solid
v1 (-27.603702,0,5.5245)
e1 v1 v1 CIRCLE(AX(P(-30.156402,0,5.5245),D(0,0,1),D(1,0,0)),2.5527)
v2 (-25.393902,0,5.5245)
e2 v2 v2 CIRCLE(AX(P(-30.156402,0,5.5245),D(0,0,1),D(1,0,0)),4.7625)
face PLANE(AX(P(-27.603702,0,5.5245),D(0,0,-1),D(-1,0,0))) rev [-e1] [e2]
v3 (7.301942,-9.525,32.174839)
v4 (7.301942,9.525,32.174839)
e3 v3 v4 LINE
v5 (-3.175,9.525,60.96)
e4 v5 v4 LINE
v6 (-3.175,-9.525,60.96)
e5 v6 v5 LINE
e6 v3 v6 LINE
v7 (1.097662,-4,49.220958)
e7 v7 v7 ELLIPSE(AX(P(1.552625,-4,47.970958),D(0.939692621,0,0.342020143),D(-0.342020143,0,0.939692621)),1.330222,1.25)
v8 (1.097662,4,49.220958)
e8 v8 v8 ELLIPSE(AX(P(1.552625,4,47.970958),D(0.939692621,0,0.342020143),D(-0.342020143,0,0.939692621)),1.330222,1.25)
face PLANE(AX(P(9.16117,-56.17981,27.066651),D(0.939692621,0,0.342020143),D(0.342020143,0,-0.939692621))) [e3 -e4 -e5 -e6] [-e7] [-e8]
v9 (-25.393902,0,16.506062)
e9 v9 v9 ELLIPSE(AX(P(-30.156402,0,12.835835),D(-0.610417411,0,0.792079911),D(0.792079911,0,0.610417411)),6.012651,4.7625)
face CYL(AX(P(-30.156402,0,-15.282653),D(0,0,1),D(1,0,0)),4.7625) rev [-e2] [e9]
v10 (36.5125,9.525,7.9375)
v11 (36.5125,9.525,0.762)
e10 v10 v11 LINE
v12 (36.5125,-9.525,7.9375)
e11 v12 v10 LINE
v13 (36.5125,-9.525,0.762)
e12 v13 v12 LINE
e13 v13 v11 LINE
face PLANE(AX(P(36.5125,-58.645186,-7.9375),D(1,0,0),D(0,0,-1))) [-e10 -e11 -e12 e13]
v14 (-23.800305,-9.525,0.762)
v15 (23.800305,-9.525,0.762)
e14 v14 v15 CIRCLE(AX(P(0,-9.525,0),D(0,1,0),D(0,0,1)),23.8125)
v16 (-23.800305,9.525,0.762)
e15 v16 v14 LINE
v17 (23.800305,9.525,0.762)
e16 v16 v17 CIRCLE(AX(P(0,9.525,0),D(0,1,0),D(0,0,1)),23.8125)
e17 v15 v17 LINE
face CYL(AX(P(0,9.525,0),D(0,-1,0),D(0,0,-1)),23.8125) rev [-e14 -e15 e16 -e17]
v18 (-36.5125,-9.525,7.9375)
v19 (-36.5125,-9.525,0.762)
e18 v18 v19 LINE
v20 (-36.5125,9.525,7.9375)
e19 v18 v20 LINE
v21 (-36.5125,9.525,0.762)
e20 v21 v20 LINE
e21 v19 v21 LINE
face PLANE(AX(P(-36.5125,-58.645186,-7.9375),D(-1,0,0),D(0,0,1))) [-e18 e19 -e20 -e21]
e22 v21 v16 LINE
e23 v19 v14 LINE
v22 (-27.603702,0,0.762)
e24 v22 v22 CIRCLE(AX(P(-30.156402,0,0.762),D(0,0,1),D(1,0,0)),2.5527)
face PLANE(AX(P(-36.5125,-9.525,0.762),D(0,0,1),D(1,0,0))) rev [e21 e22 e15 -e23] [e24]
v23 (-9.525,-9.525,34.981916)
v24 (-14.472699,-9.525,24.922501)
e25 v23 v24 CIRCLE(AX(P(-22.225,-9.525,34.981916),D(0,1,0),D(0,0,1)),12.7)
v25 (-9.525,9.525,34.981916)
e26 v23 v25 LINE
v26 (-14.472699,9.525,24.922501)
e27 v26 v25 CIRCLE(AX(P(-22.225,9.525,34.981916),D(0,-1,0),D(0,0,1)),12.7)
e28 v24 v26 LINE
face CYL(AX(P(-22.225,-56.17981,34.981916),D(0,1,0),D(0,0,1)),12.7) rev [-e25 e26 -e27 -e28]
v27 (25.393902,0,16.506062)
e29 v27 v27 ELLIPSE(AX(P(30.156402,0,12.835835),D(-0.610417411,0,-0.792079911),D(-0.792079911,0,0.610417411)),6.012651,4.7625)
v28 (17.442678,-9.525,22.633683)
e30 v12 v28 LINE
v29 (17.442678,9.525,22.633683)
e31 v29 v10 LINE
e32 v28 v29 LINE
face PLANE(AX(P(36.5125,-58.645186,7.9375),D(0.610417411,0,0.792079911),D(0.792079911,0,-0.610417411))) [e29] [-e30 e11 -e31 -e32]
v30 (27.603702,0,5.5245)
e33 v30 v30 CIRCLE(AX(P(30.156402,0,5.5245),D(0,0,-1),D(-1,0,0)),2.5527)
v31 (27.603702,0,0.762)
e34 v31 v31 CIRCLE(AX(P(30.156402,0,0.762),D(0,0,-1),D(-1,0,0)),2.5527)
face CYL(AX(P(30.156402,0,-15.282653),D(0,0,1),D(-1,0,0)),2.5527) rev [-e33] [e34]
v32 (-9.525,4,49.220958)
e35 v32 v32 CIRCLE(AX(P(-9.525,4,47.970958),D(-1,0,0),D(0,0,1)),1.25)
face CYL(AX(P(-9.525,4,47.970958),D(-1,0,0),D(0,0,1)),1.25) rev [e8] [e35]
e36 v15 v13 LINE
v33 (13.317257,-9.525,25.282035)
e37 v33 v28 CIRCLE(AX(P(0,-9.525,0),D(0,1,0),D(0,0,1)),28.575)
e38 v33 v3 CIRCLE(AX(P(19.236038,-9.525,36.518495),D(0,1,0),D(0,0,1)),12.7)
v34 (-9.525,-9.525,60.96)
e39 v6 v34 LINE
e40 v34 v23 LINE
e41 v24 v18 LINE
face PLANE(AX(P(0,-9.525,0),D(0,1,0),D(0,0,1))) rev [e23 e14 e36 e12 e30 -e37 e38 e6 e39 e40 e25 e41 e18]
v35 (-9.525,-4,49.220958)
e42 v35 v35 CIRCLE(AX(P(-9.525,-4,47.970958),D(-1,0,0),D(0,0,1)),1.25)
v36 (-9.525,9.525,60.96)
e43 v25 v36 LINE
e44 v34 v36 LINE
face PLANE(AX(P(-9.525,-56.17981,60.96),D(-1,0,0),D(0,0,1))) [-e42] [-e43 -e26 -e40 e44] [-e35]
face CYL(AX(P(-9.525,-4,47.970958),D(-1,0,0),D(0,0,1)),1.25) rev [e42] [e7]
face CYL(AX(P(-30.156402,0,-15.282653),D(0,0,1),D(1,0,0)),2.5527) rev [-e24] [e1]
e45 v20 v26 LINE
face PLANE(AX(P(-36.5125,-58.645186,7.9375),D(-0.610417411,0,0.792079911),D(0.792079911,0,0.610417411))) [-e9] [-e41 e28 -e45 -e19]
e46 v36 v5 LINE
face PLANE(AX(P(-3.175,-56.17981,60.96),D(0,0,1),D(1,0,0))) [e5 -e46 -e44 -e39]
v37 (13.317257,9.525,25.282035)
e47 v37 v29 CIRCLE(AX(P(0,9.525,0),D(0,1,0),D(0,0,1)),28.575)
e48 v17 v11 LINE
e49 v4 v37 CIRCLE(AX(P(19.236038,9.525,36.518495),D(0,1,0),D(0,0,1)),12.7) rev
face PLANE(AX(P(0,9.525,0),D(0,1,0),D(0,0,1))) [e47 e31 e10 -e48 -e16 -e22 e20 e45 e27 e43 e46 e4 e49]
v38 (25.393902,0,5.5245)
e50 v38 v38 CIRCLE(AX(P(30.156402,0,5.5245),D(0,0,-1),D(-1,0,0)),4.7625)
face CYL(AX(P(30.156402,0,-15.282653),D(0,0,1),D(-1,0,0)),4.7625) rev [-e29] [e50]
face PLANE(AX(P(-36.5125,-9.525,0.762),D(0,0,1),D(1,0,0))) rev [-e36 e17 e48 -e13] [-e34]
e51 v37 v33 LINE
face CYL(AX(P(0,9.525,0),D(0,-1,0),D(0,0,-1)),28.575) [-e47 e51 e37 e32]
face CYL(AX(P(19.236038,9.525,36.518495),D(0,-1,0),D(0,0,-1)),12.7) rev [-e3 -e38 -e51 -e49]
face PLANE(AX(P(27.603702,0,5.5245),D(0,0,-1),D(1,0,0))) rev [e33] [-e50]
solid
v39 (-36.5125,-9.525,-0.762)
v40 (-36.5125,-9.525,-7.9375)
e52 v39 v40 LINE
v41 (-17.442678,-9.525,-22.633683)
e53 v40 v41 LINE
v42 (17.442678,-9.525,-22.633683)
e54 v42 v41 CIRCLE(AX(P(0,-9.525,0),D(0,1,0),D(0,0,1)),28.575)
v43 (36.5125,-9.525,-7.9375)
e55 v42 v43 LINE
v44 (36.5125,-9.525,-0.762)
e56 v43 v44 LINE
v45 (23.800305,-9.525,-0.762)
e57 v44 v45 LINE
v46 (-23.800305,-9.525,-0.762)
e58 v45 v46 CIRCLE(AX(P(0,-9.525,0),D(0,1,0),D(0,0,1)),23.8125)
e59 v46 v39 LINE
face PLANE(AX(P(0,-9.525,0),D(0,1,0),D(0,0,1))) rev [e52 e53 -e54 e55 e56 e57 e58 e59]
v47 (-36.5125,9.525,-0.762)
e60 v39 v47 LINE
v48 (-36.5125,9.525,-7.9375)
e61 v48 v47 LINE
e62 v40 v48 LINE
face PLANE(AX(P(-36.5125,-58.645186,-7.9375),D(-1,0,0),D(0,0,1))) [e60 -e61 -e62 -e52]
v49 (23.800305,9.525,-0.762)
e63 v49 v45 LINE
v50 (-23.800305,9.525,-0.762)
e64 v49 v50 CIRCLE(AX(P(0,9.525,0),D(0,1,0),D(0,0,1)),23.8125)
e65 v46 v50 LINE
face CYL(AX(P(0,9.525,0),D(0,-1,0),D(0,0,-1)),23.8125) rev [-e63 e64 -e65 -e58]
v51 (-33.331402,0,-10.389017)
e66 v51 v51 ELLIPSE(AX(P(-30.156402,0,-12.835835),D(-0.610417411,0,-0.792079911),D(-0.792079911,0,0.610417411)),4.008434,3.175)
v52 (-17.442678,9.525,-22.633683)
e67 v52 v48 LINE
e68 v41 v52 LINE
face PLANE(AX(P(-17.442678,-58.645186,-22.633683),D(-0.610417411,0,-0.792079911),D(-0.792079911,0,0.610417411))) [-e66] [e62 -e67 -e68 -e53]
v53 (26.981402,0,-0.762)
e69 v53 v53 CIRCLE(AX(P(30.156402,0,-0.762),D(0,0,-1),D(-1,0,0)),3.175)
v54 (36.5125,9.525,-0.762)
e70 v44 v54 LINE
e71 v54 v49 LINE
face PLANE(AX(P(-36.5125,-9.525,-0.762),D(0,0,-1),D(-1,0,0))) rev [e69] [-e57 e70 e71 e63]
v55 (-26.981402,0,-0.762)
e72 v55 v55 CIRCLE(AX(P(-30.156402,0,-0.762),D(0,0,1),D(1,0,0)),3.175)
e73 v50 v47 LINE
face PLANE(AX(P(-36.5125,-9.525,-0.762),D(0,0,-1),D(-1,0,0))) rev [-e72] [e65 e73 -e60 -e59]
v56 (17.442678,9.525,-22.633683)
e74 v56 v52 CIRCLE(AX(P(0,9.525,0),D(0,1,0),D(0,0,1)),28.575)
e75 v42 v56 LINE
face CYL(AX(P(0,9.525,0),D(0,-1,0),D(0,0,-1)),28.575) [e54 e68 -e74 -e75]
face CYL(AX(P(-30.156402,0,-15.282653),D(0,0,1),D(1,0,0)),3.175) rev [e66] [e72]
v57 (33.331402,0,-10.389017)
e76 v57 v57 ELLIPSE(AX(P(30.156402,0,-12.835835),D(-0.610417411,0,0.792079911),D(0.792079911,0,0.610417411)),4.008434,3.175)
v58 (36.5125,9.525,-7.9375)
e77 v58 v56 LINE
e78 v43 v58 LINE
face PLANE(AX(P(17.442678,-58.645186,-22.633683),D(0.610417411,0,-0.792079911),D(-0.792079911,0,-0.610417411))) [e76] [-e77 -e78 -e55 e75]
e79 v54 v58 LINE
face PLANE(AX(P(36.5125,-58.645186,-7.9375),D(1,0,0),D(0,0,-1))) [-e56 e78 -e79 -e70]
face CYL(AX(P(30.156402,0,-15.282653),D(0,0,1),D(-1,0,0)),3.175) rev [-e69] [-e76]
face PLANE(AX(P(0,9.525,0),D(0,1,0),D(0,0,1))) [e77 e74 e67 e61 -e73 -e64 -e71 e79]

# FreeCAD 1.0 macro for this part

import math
import FreeCAD as App
import Part
import Sketcher

V = App.Vector
Q = App.Units.Quantity


def edges_at(feature, points):
    """Names of the edges that pass closest to the given points."""
    edges = feature.Shape.Edges
    near = lambda p: min(range(len(edges)), key=lambda i: edges[i].distToShape(Part.Vertex(*p))[0])
    return sorted({f"Edge{near(p) + 1}" for p in points})


def add_polygon(sketch, points):
    """Adds a closed chain of lines whose ends are joined by coincident constraints."""
    first, n = sketch.GeometryCount, len(points)
    for a, b in zip(points, points[1:] + points[:1]):
        sketch.addGeometry(Part.LineSegment(App.Vector(*a, 0), App.Vector(*b, 0)), False)
    for i in range(n):
        sketch.addConstraint(Sketcher.Constraint("Coincident", first + i, 2, first + (i + 1) % n, 1))

doc = App.newDocument("Part")
body = doc.addObject("PartDesign::Body", "Body")
body.AllowCompound = True

# Sketch on XZ plane
sketch1 = body.newObject("Sketcher::SketchObject", "Sketch")
sketch1.AttachmentSupport = (doc.getObject("XZ_Plane"), [""])
sketch1.MapMode = "FlatFace"
sketch1.addGeometry([
    Part.Circle(V(0, 0, 0), V(0, 0, 1), 28.575),
    Part.Circle(V(0, 0, 0), V(0, 0, 1), 23.8125),
], False)
sketch1.addConstraint([
    Sketcher.Constraint("Coincident", 0, 3, -1, 1),
    Sketcher.Constraint("Coincident", 1, 3, -1, 1),
    Sketcher.Constraint("Diameter", 0, Q("2.25 in")),
    Sketcher.Constraint("Diameter", 1, Q("1.875 in")),
])
pad1 = body.newObject("PartDesign::Pad", "Pad")
pad1.Profile = sketch1
pad1.Length = Q("0.75 in")
pad1.Midplane = True

# Sketch on XZ plane
sketch2 = body.newObject("Sketcher::SketchObject", "Sketch001")
sketch2.AttachmentSupport = (doc.getObject("XZ_Plane"), [""])
sketch2.MapMode = "FlatFace"
sketch2.AttachmentOffset = App.Placement(V(0, 0, -0.375 * 25.4), App.Rotation())
sketch2.addGeometry([
    Part.LineSegment(V(-17.442678, -22.633683, 0), V(-36.5125, -7.9375, 0)),  # 0
    Part.LineSegment(V(-36.5125, -7.9375, 0), V(-36.5125, 7.9375, 0)),  # 1
    Part.LineSegment(V(-36.5125, 7.9375, 0), V(-17.442678, 22.633683, 0)),  # 2
    Part.ArcOfCircle(Part.Circle(V(0, 0, 0), V(0, 0, 1), 28.575), math.radians(127.619691), math.radians(232.380309)),  # 3
    Part.LineSegment(V(17.442678, 22.633683, 0), V(36.5125, 7.9375, 0)),  # 4
    Part.LineSegment(V(36.5125, 7.9375, 0), V(36.5125, -7.9375, 0)),  # 5
    Part.LineSegment(V(36.5125, -7.9375, 0), V(17.442678, -22.633683, 0)),  # 6
    Part.ArcOfCircle(Part.Circle(V(0, 0, 0), V(0, 0, 1), 28.575), math.radians(-52.380309), math.radians(52.380309)),  # 7
], False)
sketch2.addConstraint([
    Sketcher.Constraint("Coincident", 0, 2, 1, 1),
    Sketcher.Constraint("Coincident", 1, 2, 2, 1),
    Sketcher.Constraint("Tangent", 2, 2, 3, 1),
    Sketcher.Constraint("Tangent", 3, 2, 0, 1),
    Sketcher.Constraint("Coincident", 4, 2, 5, 1),
    Sketcher.Constraint("Coincident", 5, 2, 6, 1),
    Sketcher.Constraint("Tangent", 6, 2, 7, 1),
    Sketcher.Constraint("Tangent", 7, 2, 4, 1),
    Sketcher.Constraint("Vertical", 1),
    Sketcher.Constraint("Vertical", 5),
    Sketcher.Constraint("Coincident", 3, 3, -1, 1),
    Sketcher.Constraint("Coincident", 7, 3, -1, 1),
    Sketcher.Constraint("Equal", 3, 7),
    Sketcher.Constraint("Symmetric", 0, 2, 4, 2, -1, 1),
    Sketcher.Constraint("Parallel", 2, 6),
    Sketcher.Constraint("Horizontal", 1, 2, 4, 2),
    Sketcher.Constraint("Radius", 3, Q("1.125 in")),
    Sketcher.Constraint("DistanceY", 1, 1, 1, 2, Q("0.625 in")),
    Sketcher.Constraint("DistanceX", 0, 2, -1, 1, Q("1.4375 in")),
])
pad2 = body.newObject("PartDesign::Pad", "Pad001")
pad2.Profile = sketch2
pad2.Length = Q("0.75 in")

# Sketch on XZ plane
sketch3 = body.newObject("Sketcher::SketchObject", "Sketch002")
sketch3.AttachmentSupport = (doc.getObject("XZ_Plane"), [""])
sketch3.MapMode = "FlatFace"
sketch3.AttachmentOffset = App.Placement(V(0, 0, -0.375 * 25.4), App.Rotation())
add_polygon(sketch3, [(-36.5125, -0.762), (-36.5125, 0.762), (36.5125, 0.762), (36.5125, -0.762)])  # lines 0-3
sketch3.addConstraint([
    Sketcher.Constraint("Vertical", 0),
    Sketcher.Constraint("Horizontal", 1),
    Sketcher.Constraint("Vertical", 2),
    Sketcher.Constraint("Horizontal", 3),
    Sketcher.Constraint("Symmetric", 0, 2, 2, 2, -1, 1),
    Sketcher.Constraint("DistanceY", 0, 1, 0, 2, Q("0.06 in")),
    Sketcher.Constraint("DistanceX", 1, 1, 1, 2, Q("2.875 in")),
])
pocket1 = body.newObject("PartDesign::Pocket", "Pocket")
pocket1.Profile = sketch3
pocket1.Type = "ThroughAll"
pocket1.Midplane = True

# Sketch on XZ plane
sketch4 = body.newObject("Sketcher::SketchObject", "Sketch003")
sketch4.AttachmentSupport = (doc.getObject("XZ_Plane"), [""])
sketch4.MapMode = "FlatFace"
add_polygon(sketch4, [(-27.603702, 5.5245), (-27.603702, 0.762), (-26.981402, -0.762), (-26.981402, -15.282653), (-30.156402, -15.282653), (-30.156402, 16.506062), (-25.393902, 16.506062), (-25.393902, 5.5245)])  # lines 0-7
sketch4.addGeometry(Part.LineSegment(V(-30.156402, 16.506062, 0), V(-30.156402, -15.282653, 0)), True)  # axis
sketch4.addConstraint([
    Sketcher.Constraint("Vertical", 0),
    Sketcher.Constraint("Vertical", 2),
    Sketcher.Constraint("Horizontal", 3),
    Sketcher.Constraint("Vertical", 4),
    Sketcher.Constraint("Horizontal", 5),
    Sketcher.Constraint("Vertical", 6),
    Sketcher.Constraint("Horizontal", 7),
    Sketcher.Constraint("Vertical", 8),
    Sketcher.Constraint("Coincident", 8, 1, 4, 2),
    Sketcher.Constraint("Horizontal", 2, 2, 8, 2),
    Sketcher.Constraint("Equal", 5, 0),
    Sketcher.Constraint("DistanceX", 3, 2, 3, 1, Q("0.125 in")),
    Sketcher.Constraint("DistanceX", 5, 1, 5, 2, Q("0.1875 in")),
    Sketcher.Constraint("DistanceX", 7, 2, 7, 1, Q("0.087 in")),
    Sketcher.Constraint("DistanceY", -1, 1, 0, 2, Q("0.03 in")),
    Sketcher.Constraint("DistanceY", 1, 2, -1, 1, Q("0.03 in")),
    Sketcher.Constraint("DistanceY", 6, 2, 6, 1, Q("10.981562 mm")),
    Sketcher.Constraint("DistanceY", 2, 2, 2, 1, Q("14.520653 mm")),
    Sketcher.Constraint("DistanceX", 0, 2, -1, 1, Q("27.603702 mm")),
])
groove = body.newObject("PartDesign::Groove", "Groove")
groove.Profile = sketch4
groove.ReferenceAxis = (sketch4, ["Axis0"])
groove.Angle = 360
doc.recompute()

mirrored = body.newObject("PartDesign::Mirrored", "Mirrored")
mirrored.Originals = [groove]
mirrored.MirrorPlane = (doc.getObject("YZ_Plane"), [""])
body.Tip = mirrored

# Sketch on XZ plane
sketch5 = body.newObject("Sketcher::SketchObject", "Sketch004")
sketch5.AttachmentSupport = (doc.getObject("XZ_Plane"), [""])
sketch5.MapMode = "FlatFace"
sketch5.AttachmentOffset = App.Placement(V(0, 0, -0.375 * 25.4), App.Rotation())
sketch5.addGeometry([
    Part.LineSegment(V(-3.175, 60.96, 0), V(9.16117, 27.066651, 0)),  # 0
    Part.ArcOfCircle(Part.Circle(V(0, 0, 0), V(0, 0, 1), 28.575), math.radians(71.300732), math.radians(127.619691)),  # 1
    Part.LineSegment(V(-17.442678, 22.633683, 0), V(-14.472699, 24.922501, 0)),  # 2
    Part.ArcOfCircle(Part.Circle(V(-22.225, 34.981916, 0), V(0, 0, 1), 12.7), math.radians(-52.380309), math.radians(0)),  # 3
    Part.LineSegment(V(-9.525, 34.981916, 0), V(-9.525, 60.96, 0)),  # 4
    Part.LineSegment(V(-9.525, 60.96, 0), V(-3.175, 60.96, 0)),  # 5
], False)
sketch5.addConstraint([
    Sketcher.Constraint("Coincident", 0, 2, 1, 1),
    Sketcher.Constraint("Tangent", 1, 2, 2, 1),
    Sketcher.Constraint("Tangent", 2, 2, 3, 1),
    Sketcher.Constraint("Tangent", 3, 2, 4, 1),
    Sketcher.Constraint("Coincident", 4, 2, 5, 1),
    Sketcher.Constraint("Coincident", 5, 2, 0, 1),
    Sketcher.Constraint("Vertical", 4),
    Sketcher.Constraint("Horizontal", 5),
    Sketcher.Constraint("Coincident", 1, 3, -1, 1),
    Sketcher.Constraint("Radius", 3, Q("0.5 in")),
    Sketcher.Constraint("Angle", 0, Q("-70 deg")),
    Sketcher.Constraint("Radius", 1, Q("1.125 in")),
    Sketcher.Constraint("DistanceX", 5, 1, 5, 2, Q("0.25 in")),
    Sketcher.Constraint("DistanceY", -1, 1, 4, 2, Q("2.4 in")),
    Sketcher.Constraint("DistanceX", 3, 3, -1, 1, Q("0.875 in")),
    Sketcher.Constraint("DistanceX", 2, 2, -1, 1, Q("14.472699 mm")),
])
pad3 = body.newObject("PartDesign::Pad", "Pad002")
pad3.Profile = sketch5
pad3.Length = Q("0.75 in")

# Sketch on YZ plane
sketch6 = body.newObject("Sketcher::SketchObject", "Sketch005")
sketch6.AttachmentSupport = (doc.getObject("YZ_Plane"), [""])
sketch6.MapMode = "FlatFace"
sketch6.AttachmentOffset = App.Placement(V(0, 0, -0.375 * 25.4), App.Rotation())
sketch6.addGeometry([
    Part.Circle(V(4, 47.970958, 0), V(0, 0, 1), 1.25),
    Part.Circle(V(-4, 47.970958, 0), V(0, 0, 1), 1.25),
], False)
sketch6.addConstraint([
    Sketcher.Constraint("Equal", 0, 1),
    Sketcher.Constraint("Symmetric", 0, 3, 1, 3, -2),
    Sketcher.Constraint("Diameter", 0, Q("2.5 mm")),
    Sketcher.Constraint("DistanceX", -1, 1, 0, 3, Q("4 mm")),
    Sketcher.Constraint("DistanceY", -1, 1, 0, 3, Q("47.970958 mm")),
])
doc.recompute()
hole = body.newObject("PartDesign::Hole", "Hole")
hole.Profile = sketch6
hole.ThreadType = "None"
hole.Diameter = 2.5
hole.DepthType = "ThroughAll"
hole.Reversed = True
doc.recompute()

fillet = body.newObject("PartDesign::Fillet", "Fillet")
fillet.Base = (hole, edges_at(hole, [(9.161, 0, 27.067)]))
fillet.Radius = Q("0.5 in")

doc.recompute()
